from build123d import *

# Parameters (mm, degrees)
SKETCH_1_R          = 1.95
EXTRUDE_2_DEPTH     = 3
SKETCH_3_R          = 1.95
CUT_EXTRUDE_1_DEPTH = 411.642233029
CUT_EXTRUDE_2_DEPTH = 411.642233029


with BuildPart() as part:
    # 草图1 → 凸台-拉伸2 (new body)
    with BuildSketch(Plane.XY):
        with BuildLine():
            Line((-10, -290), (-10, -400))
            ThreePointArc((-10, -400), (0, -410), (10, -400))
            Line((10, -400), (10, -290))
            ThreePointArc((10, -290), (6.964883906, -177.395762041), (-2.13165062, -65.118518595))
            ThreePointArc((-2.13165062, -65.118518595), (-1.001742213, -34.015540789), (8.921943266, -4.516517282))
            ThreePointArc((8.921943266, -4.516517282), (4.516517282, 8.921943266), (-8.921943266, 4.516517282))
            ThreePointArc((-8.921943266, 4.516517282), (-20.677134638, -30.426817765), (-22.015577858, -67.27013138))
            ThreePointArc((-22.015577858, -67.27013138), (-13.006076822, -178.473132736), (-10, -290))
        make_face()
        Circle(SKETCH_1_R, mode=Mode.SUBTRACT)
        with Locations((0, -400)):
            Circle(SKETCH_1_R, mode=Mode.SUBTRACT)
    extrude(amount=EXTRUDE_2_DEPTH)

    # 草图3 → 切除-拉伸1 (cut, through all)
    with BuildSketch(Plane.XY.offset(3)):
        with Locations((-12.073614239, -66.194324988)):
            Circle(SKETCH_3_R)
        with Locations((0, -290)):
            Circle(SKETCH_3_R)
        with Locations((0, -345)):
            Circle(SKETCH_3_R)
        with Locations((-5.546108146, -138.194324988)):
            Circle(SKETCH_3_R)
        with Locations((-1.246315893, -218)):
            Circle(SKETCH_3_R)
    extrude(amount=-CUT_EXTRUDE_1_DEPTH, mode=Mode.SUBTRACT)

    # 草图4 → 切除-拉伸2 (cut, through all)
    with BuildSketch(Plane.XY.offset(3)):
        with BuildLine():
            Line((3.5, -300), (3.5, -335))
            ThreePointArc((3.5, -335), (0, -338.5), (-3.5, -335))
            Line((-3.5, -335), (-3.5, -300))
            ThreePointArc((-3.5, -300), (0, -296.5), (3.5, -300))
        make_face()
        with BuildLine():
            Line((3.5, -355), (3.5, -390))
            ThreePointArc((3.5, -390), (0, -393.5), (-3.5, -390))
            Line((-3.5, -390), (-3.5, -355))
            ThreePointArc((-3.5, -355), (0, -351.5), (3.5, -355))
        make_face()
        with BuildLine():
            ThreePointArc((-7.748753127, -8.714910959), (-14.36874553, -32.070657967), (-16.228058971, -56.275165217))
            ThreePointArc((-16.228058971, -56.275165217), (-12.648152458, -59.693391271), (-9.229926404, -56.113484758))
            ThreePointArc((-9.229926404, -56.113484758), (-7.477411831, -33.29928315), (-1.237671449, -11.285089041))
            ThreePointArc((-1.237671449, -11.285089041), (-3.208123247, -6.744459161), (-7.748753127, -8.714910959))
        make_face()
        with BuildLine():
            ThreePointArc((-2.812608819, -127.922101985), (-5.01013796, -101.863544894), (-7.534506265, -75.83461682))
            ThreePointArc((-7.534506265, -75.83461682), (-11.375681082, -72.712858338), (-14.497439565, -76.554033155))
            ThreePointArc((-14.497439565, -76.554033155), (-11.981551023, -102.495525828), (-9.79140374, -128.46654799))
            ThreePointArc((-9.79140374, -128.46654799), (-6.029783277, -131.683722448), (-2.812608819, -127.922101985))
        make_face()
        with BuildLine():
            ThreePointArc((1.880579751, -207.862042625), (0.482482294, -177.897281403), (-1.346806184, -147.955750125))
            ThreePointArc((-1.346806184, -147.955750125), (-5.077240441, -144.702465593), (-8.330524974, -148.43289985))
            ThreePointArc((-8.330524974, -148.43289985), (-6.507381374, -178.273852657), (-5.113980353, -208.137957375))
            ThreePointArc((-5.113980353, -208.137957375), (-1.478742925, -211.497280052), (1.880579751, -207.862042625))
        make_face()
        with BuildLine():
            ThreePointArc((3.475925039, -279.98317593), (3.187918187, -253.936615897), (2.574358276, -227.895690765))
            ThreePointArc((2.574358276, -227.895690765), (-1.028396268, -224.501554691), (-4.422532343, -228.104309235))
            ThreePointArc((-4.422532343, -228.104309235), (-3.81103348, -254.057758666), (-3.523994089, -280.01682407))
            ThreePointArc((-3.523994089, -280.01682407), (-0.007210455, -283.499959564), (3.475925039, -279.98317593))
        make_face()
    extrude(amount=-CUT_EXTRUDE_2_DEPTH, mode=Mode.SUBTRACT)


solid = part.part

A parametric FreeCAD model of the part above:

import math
import FreeCAD as App
import Part
import Sketcher
from FreeCAD import Vector

doc = App.newDocument("Part")
params = doc.addObject("Spreadsheet::Sheet", "Params")
for row, (alias, value) in enumerate([
    ("sketch1_radius", "10 mm"),
    ("sketch1_diameter", "3.9 mm"),
    ("sketch1_height", "110 mm"),
    ("pad1_length", "3 mm"),
    ("sketch2_diameter", "3.9 mm"),
    ("sketch3_radius", "3.5 mm"),
    ("sketch3_height", "35 mm"),
], start=1):
    params.set(f"A{row}", alias)
    params.set(f"B{row}", "=" + value)
    params.setAlias(f"B{row}", alias)

body = doc.addObject("PartDesign::Body", "Body")

sketch1 = doc.addObject("Sketcher::SketchObject", "Sketch")
body.addObject(sketch1)
sketch1.AttachmentSupport = (doc.XY_Plane, [""])
sketch1.MapMode = "FlatFace"
sketch1.addGeometry([
    Part.LineSegment(Vector(-10, -290, 0), Vector(-10, -400, 0)),
    Part.ArcOfCircle(Part.Circle(Vector(0, -400, 0), Vector(0, 0, 1), 10), math.radians(180), math.radians(360)),
    Part.LineSegment(Vector(10, -400, 0), Vector(10, -290, 0)),
    Part.ArcOfCircle(Part.Circle(Vector(-2080.4, -290, 0), Vector(0, 0, 1), 2090.4), math.radians(0), math.radians(6.18)),
    Part.ArcOfCircle(Part.Circle(Vector(105.6, -53.5, 0), Vector(0, 0, 1), 108.4), math.radians(153), math.radians(186)),
    Part.ArcOfCircle(Part.Circle(Vector(0, 0, 0), Vector(0, 0, 1), 10), math.radians(-27), math.radians(153)),
    Part.ArcOfCircle(Part.Circle(Vector(105.6, -53.5, 0), Vector(0, 0, 1), 128.4), math.radians(153), math.radians(186)),
    Part.ArcOfCircle(Part.Circle(Vector(-2080.4, -290, 0), Vector(0, 0, 1), 2070.4), math.radians(0), math.radians(6.18)),
    Part.Circle(Vector(0, -400, 0), Vector(0, 0, 1), 1.9),
    Part.Circle(Vector(0, 0, 0), Vector(0, 0, 1), 1.9),
], False)
sketch1.addConstraint([
    Sketcher.Constraint("Tangent", 0, 2, 1, 1),
    Sketcher.Constraint("Tangent", 1, 2, 2, 1),
    Sketcher.Constraint("Tangent", 2, 2, 3, 1),
    Sketcher.Constraint("Tangent", 3, 2, 4, 2),
    Sketcher.Constraint("Tangent", 4, 1, 5, 1),
    Sketcher.Constraint("Tangent", 5, 2, 6, 1),
    Sketcher.Constraint("Tangent", 6, 2, 7, 2),
    Sketcher.Constraint("Tangent", 7, 1, 0, 1),
    Sketcher.Constraint("Vertical", 0),
    Sketcher.Constraint("Vertical", 2),
    Sketcher.Constraint("Coincident", 5, 3, -1, 1),
    Sketcher.Constraint("Coincident", 9, 3, -1, 1),
    Sketcher.Constraint("Coincident", 6, 3, 4, 3),
    Sketcher.Constraint("Coincident", 7, 3, 3, 3),
    Sketcher.Constraint("Coincident", 8, 3, 1, 3),
    Sketcher.Constraint("Equal", 8, 9),
    Sketcher.Constraint("PointOnObject", 1, 3, -2),
    Sketcher.Constraint("Radius", 1, 10.0),
    Sketcher.Constraint("Diameter", 8, 3.9),
    Sketcher.Constraint("DistanceY", 0, 2, 0, 1, 110.0),
    Sketcher.Constraint("DistanceY", 1, 3, -1, 1, 400.0),
    Sketcher.Constraint("Radius", 3, 2090.352715),
    Sketcher.Constraint("Radius", 4, 108.366405),
])
sketch1.setExpression("Constraints[17]", "Params.sketch1_radius")
sketch1.setExpression("Constraints[18]", "Params.sketch1_diameter")
sketch1.setExpression("Constraints[19]", "Params.sketch1_height")
pad1 = doc.addObject("PartDesign::Pad", "Pad")
body.addObject(pad1)
pad1.Profile = sketch1
pad1.setExpression("Length", "Params.pad1_length")

sketch2 = doc.addObject("Sketcher::SketchObject", "Sketch001")
body.addObject(sketch2)
sketch2.AttachmentSupport = (doc.XY_Plane, [""])
sketch2.MapMode = "FlatFace"
sketch2.AttachmentOffset = App.Placement(Vector(0, 0, 3), App.Rotation())
sketch2.addGeometry([
    Part.Circle(Vector(-12.1, -66.2, 0), Vector(0, 0, 1), 1.9),
    Part.Circle(Vector(0, -290, 0), Vector(0, 0, 1), 1.9),
    Part.Circle(Vector(0, -345, 0), Vector(0, 0, 1), 1.9),
    Part.Circle(Vector(-5.5, -138.2, 0), Vector(0, 0, 1), 1.9),
    Part.Circle(Vector(-1.2, -218, 0), Vector(0, 0, 1), 1.9),
], False)
sketch2.addConstraint([
    Sketcher.Constraint("Equal", 0, 1),
    Sketcher.Constraint("Equal", 1, 2),
    Sketcher.Constraint("Equal", 2, 3),
    Sketcher.Constraint("Equal", 3, 4),
    Sketcher.Constraint("PointOnObject", 1, 3, -2),
    Sketcher.Constraint("PointOnObject", 2, 3, -2),
    Sketcher.Constraint("Diameter", 0, 3.9),
    Sketcher.Constraint("DistanceY", 1, 3, -1, 1, 290.0),
    Sketcher.Constraint("DistanceY", 2, 3, -1, 1, 345.0),
    Sketcher.Constraint("DistanceY", 4, 3, -1, 1, 218.0),
    Sketcher.Constraint("DistanceY", 3, 3, 0, 3, 72.0),
    Sketcher.Constraint("DistanceX", 0, 3, 4, 3, 10.827298),
    Sketcher.Constraint("DistanceX", 3, 3, -1, 1, 5.546108),
    Sketcher.Constraint("DistanceX", 0, 3, -1, 1, 12.073614),
    Sketcher.Constraint("DistanceY", 0, 3, -1, 1, 66.194325),
])
sketch2.setExpression("Constraints[6]", "Params.sketch2_diameter")
pocket1 = doc.addObject("PartDesign::Pocket", "Pocket")
body.addObject(pocket1)
pocket1.Profile = sketch2
pocket1.Type = "ThroughAll"

sketch3 = doc.addObject("Sketcher::SketchObject", "Sketch002")
body.addObject(sketch3)
sketch3.AttachmentSupport = (doc.XY_Plane, [""])
sketch3.MapMode = "FlatFace"
sketch3.AttachmentOffset = App.Placement(Vector(0, 0, 3), App.Rotation())
sketch3.addGeometry([
    Part.LineSegment(Vector(3.5, -335, 0), Vector(3.5, -300, 0)),
    Part.ArcOfCircle(Part.Circle(Vector(0, -300, 0), Vector(0, 0, 1), 3.5), math.radians(0), math.radians(180)),
    Part.LineSegment(Vector(-3.5, -300, 0), Vector(-3.5, -335, 0)),
    Part.ArcOfCircle(Part.Circle(Vector(0, -335, 0), Vector(0, 0, 1), 3.5), math.radians(180), math.radians(360)),
    Part.LineSegment(Vector(3.5, -390, 0), Vector(3.5, -355, 0)),
    Part.ArcOfCircle(Part.Circle(Vector(0, -355, 0), Vector(0, 0, 1), 3.5), math.radians(0), math.radians(180)),
    Part.LineSegment(Vector(-3.5, -355, 0), Vector(-3.5, -390, 0)),
    Part.ArcOfCircle(Part.Circle(Vector(0, -390, 0), Vector(0, 0, 1), 3.5), math.radians(180), math.radians(360)),
    Part.ArcOfCircle(Part.Circle(Vector(105.6, -53.5, 0), Vector(0, 0, 1), 121.9), math.radians(158), math.radians(181)),
    Part.ArcOfCircle(Part.Circle(Vector(-12.7, -56.2, 0), Vector(0, 0, 1), 3.5), math.radians(-179), math.radians(1)),
    Part.ArcOfCircle(Part.Circle(Vector(105.6, -53.5, 0), Vector(0, 0, 1), 114.9), math.radians(158), math.radians(181)),
    Part.ArcOfCircle(Part.Circle(Vector(-4.5, -10, 0), Vector(0, 0, 1), 3.5), math.radians(-22), math.radians(158)),
    Part.ArcOfCircle(Part.Circle(Vector(-2080.4, -290, 0), Vector(0, 0, 1), 2083.9), math.radians(4.46), math.radians(5.9)),
    Part.ArcOfCircle(Part.Circle(Vector(-11, -76.2, 0), Vector(0, 0, 1), 3.5), math.radians(6), math.radians(186)),
    Part.ArcOfCircle(Part.Circle(Vector(-2080.4, -290, 0), Vector(0, 0, 1), 2076.9), math.radians(4.46), math.radians(5.9)),
    Part.ArcOfCircle(Part.Circle(Vector(-6.3, -128.2, 0), Vector(0, 0, 1), 3.5), math.radians(-176), math.radians(4)),
    Part.ArcOfCircle(Part.Circle(Vector(-2080.4, -290, 0), Vector(0, 0, 1), 2083.9), math.radians(2.26), math.radians(3.91)),
    Part.ArcOfCircle(Part.Circle(Vector(-4.8, -148.2, 0), Vector(0, 0, 1), 3.5), math.radians(4), math.radians(184)),
    Part.ArcOfCircle(Part.Circle(Vector(-2080.4, -290, 0), Vector(0, 0, 1), 2076.9), math.radians(2.26), math.radians(3.91)),
    Part.ArcOfCircle(Part.Circle(Vector(-1.6, -208, 0), Vector(0, 0, 1), 3.5), math.radians(-178), math.radians(2)),
    Part.ArcOfCircle(Part.Circle(Vector(-2080.4, -290, 0), Vector(0, 0, 1), 2083.9), math.radians(0.28), math.radians(1.71)),
    Part.ArcOfCircle(Part.Circle(Vector(-0.9, -228, 0), Vector(0, 0, 1), 3.5), math.radians(2), math.radians(182)),
    Part.ArcOfCircle(Part.Circle(Vector(-2080.4, -290, 0), Vector(0, 0, 1), 2076.9), math.radians(0.28), math.radians(1.71)),
    Part.ArcOfCircle(Part.Circle(Vector(0, -280, 0), Vector(0, 0, 1), 3.5), math.radians(-180), math.radians(0)),
], False)
sketch3.addConstraint([
    Sketcher.Constraint("Tangent", 0, 2, 1, 1),
    Sketcher.Constraint("Tangent", 1, 2, 2, 1),
    Sketcher.Constraint("Tangent", 2, 2, 3, 1),
    Sketcher.Constraint("Tangent", 3, 2, 0, 1),
    Sketcher.Constraint("Tangent", 4, 2, 5, 1),
    Sketcher.Constraint("Tangent", 5, 2, 6, 1),
    Sketcher.Constraint("Tangent", 6, 2, 7, 1),
    Sketcher.Constraint("Tangent", 7, 2, 4, 1),
    Sketcher.Constraint("Tangent", 8, 2, 9, 1),
    Sketcher.Constraint("Tangent", 9, 2, 10, 2),
    Sketcher.Constraint("Tangent", 10, 1, 11, 1),
    Sketcher.Constraint("Tangent", 11, 2, 8, 1),
    Sketcher.Constraint("Tangent", 12, 2, 13, 1),
    Sketcher.Constraint("Tangent", 13, 2, 14, 2),
    Sketcher.Constraint("Tangent", 14, 1, 15, 1),
    Sketcher.Constraint("Tangent", 15, 2, 12, 1),
    Sketcher.Constraint("Tangent", 16, 2, 17, 1),
    Sketcher.Constraint("Tangent", 17, 2, 18, 2),
    Sketcher.Constraint("Tangent", 18, 1, 19, 1),
    Sketcher.Constraint("Tangent", 19, 2, 16, 1),
    Sketcher.Constraint("Tangent", 20, 2, 21, 1),
    Sketcher.Constraint("Tangent", 21, 2, 22, 2),
    Sketcher.Constraint("Tangent", 22, 1, 23, 1),
    Sketcher.Constraint("Tangent", 23, 2, 20, 1),
    Sketcher.Constraint("Vertical", 0),
    Sketcher.Constraint("Vertical", 2),
    Sketcher.Constraint("Vertical", 4),
    Sketcher.Constraint("Vertical", 6),
    Sketcher.Constraint("Coincident", 10, 3, 8, 3),
    Sketcher.Constraint("Coincident", 14, 3, 12, 3),
    Sketcher.Constraint("Coincident", 16, 3, 12, 3),
    Sketcher.Constraint("Coincident", 18, 3, 12, 3),
    Sketcher.Constraint("Coincident", 20, 3, 14, 3),
    Sketcher.Constraint("Coincident", 22, 3, 12, 3),
    Sketcher.Constraint("Equal", 3, 5),
    Sketcher.Constraint("Equal", 7, 9),
    Sketcher.Constraint("Equal", 11, 13),
    Sketcher.Constraint("Equal", 15, 17),
    Sketcher.Constraint("Equal", 19, 21),
    Sketcher.Constraint("PointOnObject", 1, 3, -2),
    Sketcher.Constraint("PointOnObject", 5, 3, -2),
    Sketcher.Constraint("Equal", 2, 4),
    Sketcher.Constraint("Radius", 1, 3.5),
    Sketcher.Constraint("DistanceY", 0, 1, 0, 2, 35.0),
    Sketcher.Constraint("DistanceY", 1, 3, -1, 1, 300.0),
    Sketcher.Constraint("DistanceY", 5, 3, -1, 1, 355.0),
    Sketcher.Constraint("DistanceY", 11, 3, -1, 1, 10.0),
    Sketcher.Constraint("DistanceY", 12, 3, -1, 1, 290.0),
    Sketcher.Constraint("DistanceY", 19, 3, -1, 1, 208.0),
    Sketcher.Constraint("DistanceY", 21, 3, -1, 1, 228.0),
    Sketcher.Constraint("DistanceY", 23, 3, -1, 1, 280.0),
    Sketcher.Constraint("DistanceY", 13, 3, 9, 3, 20.0),
    Sketcher.Constraint("DistanceY", 15, 3, 13, 3, 52.0),
    Sketcher.Constraint("DistanceY", 17, 3, 15, 3, 20.0),
    Sketcher.Constraint("Radius", 14, 2076.852712),
    Sketcher.Constraint("Radius", 16, 2083.852711),
    Sketcher.Constraint("Radius", 8, 121.866405),
    Sketcher.Constraint("Radius", 20, 2083.852706),
    Sketcher.Constraint("DistanceX", 19, 3, -1, 1, 1.6167),
    Sketcher.Constraint("DistanceY", 15, 2, -1, 1, 127.922102),
    Sketcher.Constraint("DistanceX", 17, 3, 10, 3, 110.444501),
    Sketcher.Constraint("DistanceX", 13, 3, 10, 1, 9.778301),
])
sketch3.setExpression("Constraints[42]", "Params.sketch3_radius")
sketch3.setExpression("Constraints[43]", "Params.sketch3_height")
pocket2 = doc.addObject("PartDesign::Pocket", "Pocket001")
body.addObject(pocket2)
pocket2.Profile = sketch3
pocket2.Type = "ThroughAll"

doc.recompute()
